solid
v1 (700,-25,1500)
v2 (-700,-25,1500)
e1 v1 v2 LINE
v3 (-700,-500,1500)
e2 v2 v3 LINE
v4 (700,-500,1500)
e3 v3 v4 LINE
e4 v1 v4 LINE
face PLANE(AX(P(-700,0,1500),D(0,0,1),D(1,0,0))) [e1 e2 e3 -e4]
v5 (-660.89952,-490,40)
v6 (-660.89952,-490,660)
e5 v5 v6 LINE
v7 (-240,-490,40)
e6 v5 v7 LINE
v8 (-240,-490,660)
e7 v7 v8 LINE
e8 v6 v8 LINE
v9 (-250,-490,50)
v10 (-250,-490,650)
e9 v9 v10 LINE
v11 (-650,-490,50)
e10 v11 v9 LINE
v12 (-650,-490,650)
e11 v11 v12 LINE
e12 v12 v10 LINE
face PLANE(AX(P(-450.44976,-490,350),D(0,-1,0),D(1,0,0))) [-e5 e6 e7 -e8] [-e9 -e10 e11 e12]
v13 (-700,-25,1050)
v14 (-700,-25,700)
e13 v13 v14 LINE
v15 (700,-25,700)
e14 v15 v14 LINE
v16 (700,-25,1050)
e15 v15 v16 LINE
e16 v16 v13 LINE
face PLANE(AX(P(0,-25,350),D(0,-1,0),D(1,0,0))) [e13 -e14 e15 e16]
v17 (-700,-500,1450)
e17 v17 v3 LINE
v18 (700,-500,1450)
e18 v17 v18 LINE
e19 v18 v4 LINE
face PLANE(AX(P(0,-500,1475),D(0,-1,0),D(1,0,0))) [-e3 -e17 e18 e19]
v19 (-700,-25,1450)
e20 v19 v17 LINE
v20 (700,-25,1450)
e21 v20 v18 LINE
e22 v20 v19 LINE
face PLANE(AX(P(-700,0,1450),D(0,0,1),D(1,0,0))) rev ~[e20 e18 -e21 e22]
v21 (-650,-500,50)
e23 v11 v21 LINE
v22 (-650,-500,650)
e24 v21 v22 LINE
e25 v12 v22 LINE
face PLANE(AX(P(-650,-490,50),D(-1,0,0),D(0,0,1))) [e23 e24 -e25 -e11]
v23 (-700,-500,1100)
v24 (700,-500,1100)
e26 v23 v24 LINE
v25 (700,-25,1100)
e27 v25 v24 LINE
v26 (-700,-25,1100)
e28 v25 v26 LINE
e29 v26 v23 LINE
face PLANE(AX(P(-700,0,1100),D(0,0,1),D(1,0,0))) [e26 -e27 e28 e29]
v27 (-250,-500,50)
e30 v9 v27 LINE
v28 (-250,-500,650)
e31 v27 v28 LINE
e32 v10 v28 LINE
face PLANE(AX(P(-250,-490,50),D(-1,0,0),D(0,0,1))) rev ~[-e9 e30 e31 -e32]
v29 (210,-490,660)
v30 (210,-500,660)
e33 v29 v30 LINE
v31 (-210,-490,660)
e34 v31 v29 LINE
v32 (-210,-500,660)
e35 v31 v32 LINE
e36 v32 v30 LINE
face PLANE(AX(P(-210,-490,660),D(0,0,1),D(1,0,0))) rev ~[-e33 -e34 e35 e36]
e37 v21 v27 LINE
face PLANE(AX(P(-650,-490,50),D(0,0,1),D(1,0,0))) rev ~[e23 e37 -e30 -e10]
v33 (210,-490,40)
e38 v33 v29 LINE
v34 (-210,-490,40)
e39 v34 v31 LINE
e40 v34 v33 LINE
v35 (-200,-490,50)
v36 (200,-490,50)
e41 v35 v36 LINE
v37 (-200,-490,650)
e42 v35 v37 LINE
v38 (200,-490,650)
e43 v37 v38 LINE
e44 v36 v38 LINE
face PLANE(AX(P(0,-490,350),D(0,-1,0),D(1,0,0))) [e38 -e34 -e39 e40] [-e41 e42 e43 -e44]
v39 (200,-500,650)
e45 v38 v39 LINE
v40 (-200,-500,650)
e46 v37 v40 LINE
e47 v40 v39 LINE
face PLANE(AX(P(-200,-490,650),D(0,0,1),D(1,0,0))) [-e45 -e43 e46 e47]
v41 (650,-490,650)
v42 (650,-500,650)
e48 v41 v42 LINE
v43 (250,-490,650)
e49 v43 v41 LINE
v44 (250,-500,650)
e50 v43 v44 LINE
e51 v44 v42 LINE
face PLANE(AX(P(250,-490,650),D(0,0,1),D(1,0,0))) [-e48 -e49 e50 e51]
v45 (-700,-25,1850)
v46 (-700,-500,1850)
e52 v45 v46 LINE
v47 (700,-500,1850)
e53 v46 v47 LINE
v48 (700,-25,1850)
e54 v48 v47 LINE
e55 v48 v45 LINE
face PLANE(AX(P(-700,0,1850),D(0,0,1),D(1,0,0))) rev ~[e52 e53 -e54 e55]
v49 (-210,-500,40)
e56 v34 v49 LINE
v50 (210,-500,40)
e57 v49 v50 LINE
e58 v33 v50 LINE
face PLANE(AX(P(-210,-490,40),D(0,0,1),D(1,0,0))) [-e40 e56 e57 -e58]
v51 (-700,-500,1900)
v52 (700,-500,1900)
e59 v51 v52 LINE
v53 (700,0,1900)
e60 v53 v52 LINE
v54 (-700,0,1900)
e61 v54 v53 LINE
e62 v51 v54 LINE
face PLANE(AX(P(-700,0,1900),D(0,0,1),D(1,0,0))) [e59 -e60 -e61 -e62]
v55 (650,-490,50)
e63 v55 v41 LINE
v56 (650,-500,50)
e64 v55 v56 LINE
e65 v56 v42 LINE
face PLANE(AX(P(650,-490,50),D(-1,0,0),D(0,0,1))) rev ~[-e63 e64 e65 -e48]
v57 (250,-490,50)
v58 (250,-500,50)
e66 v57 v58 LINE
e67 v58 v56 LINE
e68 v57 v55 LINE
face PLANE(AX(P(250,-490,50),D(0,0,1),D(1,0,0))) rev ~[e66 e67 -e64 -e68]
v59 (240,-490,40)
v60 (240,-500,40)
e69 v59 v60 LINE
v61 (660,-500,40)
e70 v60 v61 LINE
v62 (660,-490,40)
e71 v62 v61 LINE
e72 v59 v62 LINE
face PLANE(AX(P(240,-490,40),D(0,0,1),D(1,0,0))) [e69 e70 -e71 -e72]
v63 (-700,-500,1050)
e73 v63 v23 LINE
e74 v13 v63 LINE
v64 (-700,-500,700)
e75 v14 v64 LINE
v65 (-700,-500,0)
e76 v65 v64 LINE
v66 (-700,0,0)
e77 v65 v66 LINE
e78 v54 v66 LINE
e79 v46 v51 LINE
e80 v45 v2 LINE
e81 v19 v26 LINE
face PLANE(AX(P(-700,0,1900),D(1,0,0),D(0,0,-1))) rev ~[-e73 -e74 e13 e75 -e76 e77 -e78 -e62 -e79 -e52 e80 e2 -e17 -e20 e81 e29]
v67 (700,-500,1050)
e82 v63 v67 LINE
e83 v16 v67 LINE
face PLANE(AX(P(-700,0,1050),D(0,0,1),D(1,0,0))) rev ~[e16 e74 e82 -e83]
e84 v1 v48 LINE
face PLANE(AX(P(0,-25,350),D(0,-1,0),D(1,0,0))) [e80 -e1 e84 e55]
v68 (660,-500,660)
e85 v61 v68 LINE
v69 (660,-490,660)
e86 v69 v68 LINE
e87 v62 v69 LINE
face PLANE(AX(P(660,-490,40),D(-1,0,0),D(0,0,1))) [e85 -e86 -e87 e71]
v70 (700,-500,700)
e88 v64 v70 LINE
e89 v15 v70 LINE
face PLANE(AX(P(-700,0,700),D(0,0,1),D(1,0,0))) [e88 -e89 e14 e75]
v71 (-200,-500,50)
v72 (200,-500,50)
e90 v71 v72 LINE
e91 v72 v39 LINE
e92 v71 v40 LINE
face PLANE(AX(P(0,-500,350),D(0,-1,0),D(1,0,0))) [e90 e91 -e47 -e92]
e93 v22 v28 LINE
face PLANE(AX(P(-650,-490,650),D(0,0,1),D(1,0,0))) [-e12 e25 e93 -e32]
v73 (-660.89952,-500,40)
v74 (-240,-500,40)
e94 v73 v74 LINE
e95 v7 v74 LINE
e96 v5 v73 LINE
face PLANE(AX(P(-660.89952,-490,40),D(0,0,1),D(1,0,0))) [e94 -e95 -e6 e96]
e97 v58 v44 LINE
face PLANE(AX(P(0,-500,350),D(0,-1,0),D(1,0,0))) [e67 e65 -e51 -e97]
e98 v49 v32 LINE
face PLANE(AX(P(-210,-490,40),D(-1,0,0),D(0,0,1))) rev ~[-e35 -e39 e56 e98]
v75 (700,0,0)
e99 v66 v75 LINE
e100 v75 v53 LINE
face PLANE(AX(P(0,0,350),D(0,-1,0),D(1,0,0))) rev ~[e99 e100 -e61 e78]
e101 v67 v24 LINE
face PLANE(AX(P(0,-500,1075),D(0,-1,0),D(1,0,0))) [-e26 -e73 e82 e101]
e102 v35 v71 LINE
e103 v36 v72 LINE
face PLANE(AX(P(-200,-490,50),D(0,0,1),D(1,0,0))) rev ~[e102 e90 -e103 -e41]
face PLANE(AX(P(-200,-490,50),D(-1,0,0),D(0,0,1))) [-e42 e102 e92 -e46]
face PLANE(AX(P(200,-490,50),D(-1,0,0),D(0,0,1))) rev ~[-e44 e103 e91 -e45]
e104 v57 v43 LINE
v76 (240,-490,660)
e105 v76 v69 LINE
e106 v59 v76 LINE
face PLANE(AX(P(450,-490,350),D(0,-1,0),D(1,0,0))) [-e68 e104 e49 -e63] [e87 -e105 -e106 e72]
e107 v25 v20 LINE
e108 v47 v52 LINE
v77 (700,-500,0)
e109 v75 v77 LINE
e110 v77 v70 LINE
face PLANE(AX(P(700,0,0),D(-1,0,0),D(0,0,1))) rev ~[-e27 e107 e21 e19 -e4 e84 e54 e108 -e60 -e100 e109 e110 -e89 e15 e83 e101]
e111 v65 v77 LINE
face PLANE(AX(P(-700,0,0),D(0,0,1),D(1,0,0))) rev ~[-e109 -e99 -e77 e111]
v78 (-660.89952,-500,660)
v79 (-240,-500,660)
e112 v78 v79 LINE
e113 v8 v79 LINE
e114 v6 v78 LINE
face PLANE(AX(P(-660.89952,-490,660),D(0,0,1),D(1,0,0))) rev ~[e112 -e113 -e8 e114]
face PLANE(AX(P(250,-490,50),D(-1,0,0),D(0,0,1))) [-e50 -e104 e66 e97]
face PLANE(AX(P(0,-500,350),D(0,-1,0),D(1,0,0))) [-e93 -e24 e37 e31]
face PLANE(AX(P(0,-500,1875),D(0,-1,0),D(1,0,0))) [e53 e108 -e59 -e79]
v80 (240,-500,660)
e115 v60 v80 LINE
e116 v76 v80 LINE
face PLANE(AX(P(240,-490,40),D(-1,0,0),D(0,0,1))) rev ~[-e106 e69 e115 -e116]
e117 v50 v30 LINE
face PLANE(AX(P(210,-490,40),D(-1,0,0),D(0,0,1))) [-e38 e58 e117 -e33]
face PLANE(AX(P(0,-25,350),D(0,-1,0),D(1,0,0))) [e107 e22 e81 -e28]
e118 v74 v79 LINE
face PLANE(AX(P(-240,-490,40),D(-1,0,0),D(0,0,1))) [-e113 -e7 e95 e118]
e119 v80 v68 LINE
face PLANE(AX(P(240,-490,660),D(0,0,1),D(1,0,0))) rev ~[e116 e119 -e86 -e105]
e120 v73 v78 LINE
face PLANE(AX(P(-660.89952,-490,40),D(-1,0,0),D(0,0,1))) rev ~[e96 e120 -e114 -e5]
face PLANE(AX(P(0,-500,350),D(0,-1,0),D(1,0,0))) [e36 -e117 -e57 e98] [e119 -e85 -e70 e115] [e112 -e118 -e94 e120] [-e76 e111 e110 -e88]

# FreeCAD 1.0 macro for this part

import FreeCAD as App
import Part
import Sketcher

doc = App.newDocument("Part")
body = doc.addObject("PartDesign::Body", "Body")

# Sketch on XZ plane
sketch1 = body.newObject("Sketcher::SketchObject", "Sketch")
sketch1.AttachmentSupport = (doc.getObject("XZ_Plane"), [""])
sketch1.MapMode = "FlatFace"
sketch1.addGeometry([
    Part.LineSegment(App.Vector(-700, 0, 0), App.Vector(700, 0, 0)),
    Part.LineSegment(App.Vector(700, 0, 0), App.Vector(700, 1900, 0)),
    Part.LineSegment(App.Vector(700, 1900, 0), App.Vector(-700, 1900, 0)),
    Part.LineSegment(App.Vector(-700, 1900, 0), App.Vector(-700, 0, 0)),
], False)
sketch1.addConstraint([
    Sketcher.Constraint("Coincident", 0, 2, 1, 1),
    Sketcher.Constraint("Coincident", 1, 2, 2, 1),
    Sketcher.Constraint("Coincident", 2, 2, 3, 1),
    Sketcher.Constraint("Coincident", 3, 2, 0, 1),
    Sketcher.Constraint("Horizontal", 0),
    Sketcher.Constraint("Vertical", 1),
    Sketcher.Constraint("Horizontal", 2),
    Sketcher.Constraint("Vertical", 3),
    Sketcher.Constraint("Symmetric", 0, 2, 3, 2, -1, 1),
    Sketcher.Constraint("DistanceX", 0, 1, 0, 2, 1400.0),
    Sketcher.Constraint("DistanceY", 1, 1, 1, 2, 1900.0),
])
pad1 = body.newObject("PartDesign::Pad", "Pad")
pad1.Profile = sketch1
pad1.Length = 25

# Sketch on XZ plane
sketch2 = body.newObject("Sketcher::SketchObject", "Sketch001")
sketch2.AttachmentSupport = (doc.getObject("XZ_Plane"), [""])
sketch2.MapMode = "FlatFace"
sketch2.addGeometry([
    Part.LineSegment(App.Vector(-700, 700, 0), App.Vector(-700, 0, 0)),  # 0
    Part.LineSegment(App.Vector(-700, 0, 0), App.Vector(700, 0, 0)),  # 1
    Part.LineSegment(App.Vector(700, 0, 0), App.Vector(700, 700, 0)),  # 2
    Part.LineSegment(App.Vector(700, 700, 0), App.Vector(-700, 700, 0)),  # 3
    Part.LineSegment(App.Vector(-700, 1900, 0), App.Vector(-700, 1850, 0)),  # 4
    Part.LineSegment(App.Vector(-700, 1850, 0), App.Vector(700, 1850, 0)),  # 5
    Part.LineSegment(App.Vector(700, 1850, 0), App.Vector(700, 1900, 0)),  # 6
    Part.LineSegment(App.Vector(700, 1900, 0), App.Vector(-700, 1900, 0)),  # 7
    Part.LineSegment(App.Vector(-700, 1500, 0), App.Vector(-700, 1450, 0)),  # 8
    Part.LineSegment(App.Vector(-700, 1450, 0), App.Vector(700, 1450, 0)),  # 9
    Part.LineSegment(App.Vector(700, 1450, 0), App.Vector(700, 1500, 0)),  # 10
    Part.LineSegment(App.Vector(700, 1500, 0), App.Vector(-700, 1500, 0)),  # 11
    Part.LineSegment(App.Vector(-700, 1100, 0), App.Vector(-700, 1050, 0)),  # 12
    Part.LineSegment(App.Vector(-700, 1050, 0), App.Vector(700, 1050, 0)),  # 13
    Part.LineSegment(App.Vector(700, 1050, 0), App.Vector(700, 1100, 0)),  # 14
    Part.LineSegment(App.Vector(700, 1100, 0), App.Vector(-700, 1100, 0)),  # 15
], False)
sketch2.addConstraint([
    Sketcher.Constraint("Coincident", 0, 2, 1, 1),
    Sketcher.Constraint("Coincident", 1, 2, 2, 1),
    Sketcher.Constraint("Coincident", 2, 2, 3, 1),
    Sketcher.Constraint("Coincident", 3, 2, 0, 1),
    Sketcher.Constraint("Coincident", 4, 2, 5, 1),
    Sketcher.Constraint("Coincident", 5, 2, 6, 1),
    Sketcher.Constraint("Coincident", 6, 2, 7, 1),
    Sketcher.Constraint("Coincident", 7, 2, 4, 1),
    Sketcher.Constraint("Coincident", 8, 2, 9, 1),
    Sketcher.Constraint("Coincident", 9, 2, 10, 1),
    Sketcher.Constraint("Coincident", 10, 2, 11, 1),
    Sketcher.Constraint("Coincident", 11, 2, 8, 1),
    Sketcher.Constraint("Coincident", 12, 2, 13, 1),
    Sketcher.Constraint("Coincident", 13, 2, 14, 1),
    Sketcher.Constraint("Coincident", 14, 2, 15, 1),
    Sketcher.Constraint("Coincident", 15, 2, 12, 1),
    Sketcher.Constraint("Vertical", 0),
    Sketcher.Constraint("Horizontal", 1),
    Sketcher.Constraint("Vertical", 2),
    Sketcher.Constraint("Horizontal", 3),
    Sketcher.Constraint("Vertical", 4),
    Sketcher.Constraint("Horizontal", 5),
    Sketcher.Constraint("Vertical", 6),
    Sketcher.Constraint("Horizontal", 7),
    Sketcher.Constraint("Vertical", 8),
    Sketcher.Constraint("Horizontal", 9),
    Sketcher.Constraint("Vertical", 10),
    Sketcher.Constraint("Horizontal", 11),
    Sketcher.Constraint("Vertical", 12),
    Sketcher.Constraint("Horizontal", 13),
    Sketcher.Constraint("Vertical", 14),
    Sketcher.Constraint("Horizontal", 15),
    Sketcher.Constraint("Symmetric", 0, 2, 1, 2, -1, 1),
    Sketcher.Constraint("Vertical", 3, 2, 4, 2),
    Sketcher.Constraint("Vertical", 2, 2, 5, 2),
    Sketcher.Constraint("Vertical", 7, 2, 8, 2),
    Sketcher.Constraint("Vertical", 6, 2, 9, 2),
    Sketcher.Constraint("Vertical", 11, 2, 12, 2),
    Sketcher.Constraint("Vertical", 10, 2, 13, 2),
    Sketcher.Constraint("Equal", 6, 8),
    Sketcher.Constraint("Equal", 10, 12),
    Sketcher.Constraint("DistanceX", 1, 1, 1, 2, 1400.0),
    Sketcher.Constraint("DistanceY", 0, 2, 0, 1, 700.0),
    Sketcher.Constraint("DistanceY", 4, 2, 4, 1, 50.0),
    Sketcher.Constraint("DistanceY", -1, 1, 4, 2, 1850.0),
    Sketcher.Constraint("DistanceY", -1, 1, 8, 2, 1450.0),
    Sketcher.Constraint("DistanceY", -1, 1, 12, 2, 1050.0),
])
pad2 = body.newObject("PartDesign::Pad", "Pad001")
pad2.Profile = sketch2
pad2.Length = 500

# Sketch on XZ plane
sketch3 = body.newObject("Sketcher::SketchObject", "Sketch002")
sketch3.AttachmentSupport = (doc.getObject("XZ_Plane"), [""])
sketch3.MapMode = "FlatFace"
sketch3.AttachmentOffset = App.Placement(App.Vector(0, 0, 490), App.Rotation())
sketch3.addGeometry([
    Part.LineSegment(App.Vector(240, 660, 0), App.Vector(240, 40, 0)),  # 0
    Part.LineSegment(App.Vector(240, 40, 0), App.Vector(660, 40, 0)),  # 1
    Part.LineSegment(App.Vector(660, 40, 0), App.Vector(660, 660, 0)),  # 2
    Part.LineSegment(App.Vector(660, 660, 0), App.Vector(240, 660, 0)),  # 3
    Part.LineSegment(App.Vector(650, 50, 0), App.Vector(250, 50, 0)),  # 4
    Part.LineSegment(App.Vector(250, 50, 0), App.Vector(250, 650, 0)),  # 5
    Part.LineSegment(App.Vector(250, 650, 0), App.Vector(650, 650, 0)),  # 6
    Part.LineSegment(App.Vector(650, 650, 0), App.Vector(650, 50, 0)),  # 7
    Part.LineSegment(App.Vector(-210, 660, 0), App.Vector(-210, 40, 0)),  # 8
    Part.LineSegment(App.Vector(-210, 40, 0), App.Vector(210, 40, 0)),  # 9
    Part.LineSegment(App.Vector(210, 40, 0), App.Vector(210, 660, 0)),  # 10
    Part.LineSegment(App.Vector(210, 660, 0), App.Vector(-210, 660, 0)),  # 11
    Part.LineSegment(App.Vector(200, 50, 0), App.Vector(-200, 50, 0)),  # 12
    Part.LineSegment(App.Vector(-200, 50, 0), App.Vector(-200, 650, 0)),  # 13
    Part.LineSegment(App.Vector(-200, 650, 0), App.Vector(200, 650, 0)),  # 14
    Part.LineSegment(App.Vector(200, 650, 0), App.Vector(200, 50, 0)),  # 15
    Part.LineSegment(App.Vector(-661, 660, 0), App.Vector(-661, 40, 0)),  # 16
    Part.LineSegment(App.Vector(-661, 40, 0), App.Vector(-240, 40, 0)),  # 17
    Part.LineSegment(App.Vector(-240, 40, 0), App.Vector(-240, 660, 0)),  # 18
    Part.LineSegment(App.Vector(-240, 660, 0), App.Vector(-661, 660, 0)),  # 19
    Part.LineSegment(App.Vector(-250, 50, 0), App.Vector(-650, 50, 0)),  # 20
    Part.LineSegment(App.Vector(-650, 50, 0), App.Vector(-650, 650, 0)),  # 21
    Part.LineSegment(App.Vector(-650, 650, 0), App.Vector(-250, 650, 0)),  # 22
    Part.LineSegment(App.Vector(-250, 650, 0), App.Vector(-250, 50, 0)),  # 23
], False)
sketch3.addConstraint([
    Sketcher.Constraint("Coincident", 0, 2, 1, 1),
    Sketcher.Constraint("Coincident", 1, 2, 2, 1),
    Sketcher.Constraint("Coincident", 2, 2, 3, 1),
    Sketcher.Constraint("Coincident", 3, 2, 0, 1),
    Sketcher.Constraint("Coincident", 4, 2, 5, 1),
    Sketcher.Constraint("Coincident", 5, 2, 6, 1),
    Sketcher.Constraint("Coincident", 6, 2, 7, 1),
    Sketcher.Constraint("Coincident", 7, 2, 4, 1),
    Sketcher.Constraint("Coincident", 8, 2, 9, 1),
    Sketcher.Constraint("Coincident", 9, 2, 10, 1),
    Sketcher.Constraint("Coincident", 10, 2, 11, 1),
    Sketcher.Constraint("Coincident", 11, 2, 8, 1),
    Sketcher.Constraint("Coincident", 12, 2, 13, 1),
    Sketcher.Constraint("Coincident", 13, 2, 14, 1),
    Sketcher.Constraint("Coincident", 14, 2, 15, 1),
    Sketcher.Constraint("Coincident", 15, 2, 12, 1),
    Sketcher.Constraint("Coincident", 16, 2, 17, 1),
    Sketcher.Constraint("Coincident", 17, 2, 18, 1),
    Sketcher.Constraint("Coincident", 18, 2, 19, 1),
    Sketcher.Constraint("Coincident", 19, 2, 16, 1),
    Sketcher.Constraint("Coincident", 20, 2, 21, 1),
    Sketcher.Constraint("Coincident", 21, 2, 22, 1),
    Sketcher.Constraint("Coincident", 22, 2, 23, 1),
    Sketcher.Constraint("Coincident", 23, 2, 20, 1),
    Sketcher.Constraint("Vertical", 0),
    Sketcher.Constraint("Horizontal", 1),
    Sketcher.Constraint("Vertical", 2),
    Sketcher.Constraint("Horizontal", 3),
    Sketcher.Constraint("Horizontal", 4),
    Sketcher.Constraint("Vertical", 5),
    Sketcher.Constraint("Horizontal", 6),
    Sketcher.Constraint("Vertical", 7),
    Sketcher.Constraint("Vertical", 8),
    Sketcher.Constraint("Horizontal", 9),
    Sketcher.Constraint("Vertical", 10),
    Sketcher.Constraint("Horizontal", 11),
    Sketcher.Constraint("Horizontal", 12),
    Sketcher.Constraint("Vertical", 13),
    Sketcher.Constraint("Horizontal", 14),
    Sketcher.Constraint("Vertical", 15),
    Sketcher.Constraint("Vertical", 16),
    Sketcher.Constraint("Horizontal", 17),
    Sketcher.Constraint("Vertical", 18),
    Sketcher.Constraint("Horizontal", 19),
    Sketcher.Constraint("Horizontal", 20),
    Sketcher.Constraint("Vertical", 21),
    Sketcher.Constraint("Horizontal", 22),
    Sketcher.Constraint("Vertical", 23),
    Sketcher.Constraint("Symmetric", 0, 2, 17, 2, -2),
    Sketcher.Constraint("Symmetric", 7, 2, 20, 2, -2),
    Sketcher.Constraint("Symmetric", 5, 2, 22, 2, -2),
    Sketcher.Constraint("Horizontal", 1, 2, 8, 2),
    Sketcher.Constraint("Horizontal", 3, 2, 10, 2),
    Sketcher.Constraint("Horizontal", 7, 2, 12, 2),
    Sketcher.Constraint("Horizontal", 6, 2, 13, 2),
    Sketcher.Constraint("Horizontal", 11, 2, 18, 2),
    Sketcher.Constraint("Equal", 3, 9),
    Sketcher.Constraint("Equal", 6, 12),
    Sketcher.Constraint("DistanceX", 1, 1, 1, 2, 420.0),
    Sketcher.Constraint("DistanceX", 4, 2, 4, 1, 400.0),
    Sketcher.Constraint("DistanceY", 0, 2, 0, 1, 620.0),
    Sketcher.Constraint("DistanceY", 5, 1, 5, 2, 600.0),
    Sketcher.Constraint("DistanceX", -1, 1, 0, 2, 240.0),
    Sketcher.Constraint("DistanceY", -1, 1, 0, 2, 40.0),
    Sketcher.Constraint("DistanceX", -1, 1, 4, 2, 250.0),
    Sketcher.Constraint("DistanceY", -1, 1, 4, 2, 50.0),
    Sketcher.Constraint("DistanceX", 8, 2, -1, 1, 210.0),
    Sketcher.Constraint("DistanceX", 12, 2, -1, 1, 200.0),
    Sketcher.Constraint("DistanceX", 17, 1, 17, 2, 420.89952),
])
pocket1 = body.newObject("PartDesign::Pocket", "Pocket")
pocket1.Profile = sketch3
pocket1.Length = 10
pocket1.Reversed = True

doc.recompute()
